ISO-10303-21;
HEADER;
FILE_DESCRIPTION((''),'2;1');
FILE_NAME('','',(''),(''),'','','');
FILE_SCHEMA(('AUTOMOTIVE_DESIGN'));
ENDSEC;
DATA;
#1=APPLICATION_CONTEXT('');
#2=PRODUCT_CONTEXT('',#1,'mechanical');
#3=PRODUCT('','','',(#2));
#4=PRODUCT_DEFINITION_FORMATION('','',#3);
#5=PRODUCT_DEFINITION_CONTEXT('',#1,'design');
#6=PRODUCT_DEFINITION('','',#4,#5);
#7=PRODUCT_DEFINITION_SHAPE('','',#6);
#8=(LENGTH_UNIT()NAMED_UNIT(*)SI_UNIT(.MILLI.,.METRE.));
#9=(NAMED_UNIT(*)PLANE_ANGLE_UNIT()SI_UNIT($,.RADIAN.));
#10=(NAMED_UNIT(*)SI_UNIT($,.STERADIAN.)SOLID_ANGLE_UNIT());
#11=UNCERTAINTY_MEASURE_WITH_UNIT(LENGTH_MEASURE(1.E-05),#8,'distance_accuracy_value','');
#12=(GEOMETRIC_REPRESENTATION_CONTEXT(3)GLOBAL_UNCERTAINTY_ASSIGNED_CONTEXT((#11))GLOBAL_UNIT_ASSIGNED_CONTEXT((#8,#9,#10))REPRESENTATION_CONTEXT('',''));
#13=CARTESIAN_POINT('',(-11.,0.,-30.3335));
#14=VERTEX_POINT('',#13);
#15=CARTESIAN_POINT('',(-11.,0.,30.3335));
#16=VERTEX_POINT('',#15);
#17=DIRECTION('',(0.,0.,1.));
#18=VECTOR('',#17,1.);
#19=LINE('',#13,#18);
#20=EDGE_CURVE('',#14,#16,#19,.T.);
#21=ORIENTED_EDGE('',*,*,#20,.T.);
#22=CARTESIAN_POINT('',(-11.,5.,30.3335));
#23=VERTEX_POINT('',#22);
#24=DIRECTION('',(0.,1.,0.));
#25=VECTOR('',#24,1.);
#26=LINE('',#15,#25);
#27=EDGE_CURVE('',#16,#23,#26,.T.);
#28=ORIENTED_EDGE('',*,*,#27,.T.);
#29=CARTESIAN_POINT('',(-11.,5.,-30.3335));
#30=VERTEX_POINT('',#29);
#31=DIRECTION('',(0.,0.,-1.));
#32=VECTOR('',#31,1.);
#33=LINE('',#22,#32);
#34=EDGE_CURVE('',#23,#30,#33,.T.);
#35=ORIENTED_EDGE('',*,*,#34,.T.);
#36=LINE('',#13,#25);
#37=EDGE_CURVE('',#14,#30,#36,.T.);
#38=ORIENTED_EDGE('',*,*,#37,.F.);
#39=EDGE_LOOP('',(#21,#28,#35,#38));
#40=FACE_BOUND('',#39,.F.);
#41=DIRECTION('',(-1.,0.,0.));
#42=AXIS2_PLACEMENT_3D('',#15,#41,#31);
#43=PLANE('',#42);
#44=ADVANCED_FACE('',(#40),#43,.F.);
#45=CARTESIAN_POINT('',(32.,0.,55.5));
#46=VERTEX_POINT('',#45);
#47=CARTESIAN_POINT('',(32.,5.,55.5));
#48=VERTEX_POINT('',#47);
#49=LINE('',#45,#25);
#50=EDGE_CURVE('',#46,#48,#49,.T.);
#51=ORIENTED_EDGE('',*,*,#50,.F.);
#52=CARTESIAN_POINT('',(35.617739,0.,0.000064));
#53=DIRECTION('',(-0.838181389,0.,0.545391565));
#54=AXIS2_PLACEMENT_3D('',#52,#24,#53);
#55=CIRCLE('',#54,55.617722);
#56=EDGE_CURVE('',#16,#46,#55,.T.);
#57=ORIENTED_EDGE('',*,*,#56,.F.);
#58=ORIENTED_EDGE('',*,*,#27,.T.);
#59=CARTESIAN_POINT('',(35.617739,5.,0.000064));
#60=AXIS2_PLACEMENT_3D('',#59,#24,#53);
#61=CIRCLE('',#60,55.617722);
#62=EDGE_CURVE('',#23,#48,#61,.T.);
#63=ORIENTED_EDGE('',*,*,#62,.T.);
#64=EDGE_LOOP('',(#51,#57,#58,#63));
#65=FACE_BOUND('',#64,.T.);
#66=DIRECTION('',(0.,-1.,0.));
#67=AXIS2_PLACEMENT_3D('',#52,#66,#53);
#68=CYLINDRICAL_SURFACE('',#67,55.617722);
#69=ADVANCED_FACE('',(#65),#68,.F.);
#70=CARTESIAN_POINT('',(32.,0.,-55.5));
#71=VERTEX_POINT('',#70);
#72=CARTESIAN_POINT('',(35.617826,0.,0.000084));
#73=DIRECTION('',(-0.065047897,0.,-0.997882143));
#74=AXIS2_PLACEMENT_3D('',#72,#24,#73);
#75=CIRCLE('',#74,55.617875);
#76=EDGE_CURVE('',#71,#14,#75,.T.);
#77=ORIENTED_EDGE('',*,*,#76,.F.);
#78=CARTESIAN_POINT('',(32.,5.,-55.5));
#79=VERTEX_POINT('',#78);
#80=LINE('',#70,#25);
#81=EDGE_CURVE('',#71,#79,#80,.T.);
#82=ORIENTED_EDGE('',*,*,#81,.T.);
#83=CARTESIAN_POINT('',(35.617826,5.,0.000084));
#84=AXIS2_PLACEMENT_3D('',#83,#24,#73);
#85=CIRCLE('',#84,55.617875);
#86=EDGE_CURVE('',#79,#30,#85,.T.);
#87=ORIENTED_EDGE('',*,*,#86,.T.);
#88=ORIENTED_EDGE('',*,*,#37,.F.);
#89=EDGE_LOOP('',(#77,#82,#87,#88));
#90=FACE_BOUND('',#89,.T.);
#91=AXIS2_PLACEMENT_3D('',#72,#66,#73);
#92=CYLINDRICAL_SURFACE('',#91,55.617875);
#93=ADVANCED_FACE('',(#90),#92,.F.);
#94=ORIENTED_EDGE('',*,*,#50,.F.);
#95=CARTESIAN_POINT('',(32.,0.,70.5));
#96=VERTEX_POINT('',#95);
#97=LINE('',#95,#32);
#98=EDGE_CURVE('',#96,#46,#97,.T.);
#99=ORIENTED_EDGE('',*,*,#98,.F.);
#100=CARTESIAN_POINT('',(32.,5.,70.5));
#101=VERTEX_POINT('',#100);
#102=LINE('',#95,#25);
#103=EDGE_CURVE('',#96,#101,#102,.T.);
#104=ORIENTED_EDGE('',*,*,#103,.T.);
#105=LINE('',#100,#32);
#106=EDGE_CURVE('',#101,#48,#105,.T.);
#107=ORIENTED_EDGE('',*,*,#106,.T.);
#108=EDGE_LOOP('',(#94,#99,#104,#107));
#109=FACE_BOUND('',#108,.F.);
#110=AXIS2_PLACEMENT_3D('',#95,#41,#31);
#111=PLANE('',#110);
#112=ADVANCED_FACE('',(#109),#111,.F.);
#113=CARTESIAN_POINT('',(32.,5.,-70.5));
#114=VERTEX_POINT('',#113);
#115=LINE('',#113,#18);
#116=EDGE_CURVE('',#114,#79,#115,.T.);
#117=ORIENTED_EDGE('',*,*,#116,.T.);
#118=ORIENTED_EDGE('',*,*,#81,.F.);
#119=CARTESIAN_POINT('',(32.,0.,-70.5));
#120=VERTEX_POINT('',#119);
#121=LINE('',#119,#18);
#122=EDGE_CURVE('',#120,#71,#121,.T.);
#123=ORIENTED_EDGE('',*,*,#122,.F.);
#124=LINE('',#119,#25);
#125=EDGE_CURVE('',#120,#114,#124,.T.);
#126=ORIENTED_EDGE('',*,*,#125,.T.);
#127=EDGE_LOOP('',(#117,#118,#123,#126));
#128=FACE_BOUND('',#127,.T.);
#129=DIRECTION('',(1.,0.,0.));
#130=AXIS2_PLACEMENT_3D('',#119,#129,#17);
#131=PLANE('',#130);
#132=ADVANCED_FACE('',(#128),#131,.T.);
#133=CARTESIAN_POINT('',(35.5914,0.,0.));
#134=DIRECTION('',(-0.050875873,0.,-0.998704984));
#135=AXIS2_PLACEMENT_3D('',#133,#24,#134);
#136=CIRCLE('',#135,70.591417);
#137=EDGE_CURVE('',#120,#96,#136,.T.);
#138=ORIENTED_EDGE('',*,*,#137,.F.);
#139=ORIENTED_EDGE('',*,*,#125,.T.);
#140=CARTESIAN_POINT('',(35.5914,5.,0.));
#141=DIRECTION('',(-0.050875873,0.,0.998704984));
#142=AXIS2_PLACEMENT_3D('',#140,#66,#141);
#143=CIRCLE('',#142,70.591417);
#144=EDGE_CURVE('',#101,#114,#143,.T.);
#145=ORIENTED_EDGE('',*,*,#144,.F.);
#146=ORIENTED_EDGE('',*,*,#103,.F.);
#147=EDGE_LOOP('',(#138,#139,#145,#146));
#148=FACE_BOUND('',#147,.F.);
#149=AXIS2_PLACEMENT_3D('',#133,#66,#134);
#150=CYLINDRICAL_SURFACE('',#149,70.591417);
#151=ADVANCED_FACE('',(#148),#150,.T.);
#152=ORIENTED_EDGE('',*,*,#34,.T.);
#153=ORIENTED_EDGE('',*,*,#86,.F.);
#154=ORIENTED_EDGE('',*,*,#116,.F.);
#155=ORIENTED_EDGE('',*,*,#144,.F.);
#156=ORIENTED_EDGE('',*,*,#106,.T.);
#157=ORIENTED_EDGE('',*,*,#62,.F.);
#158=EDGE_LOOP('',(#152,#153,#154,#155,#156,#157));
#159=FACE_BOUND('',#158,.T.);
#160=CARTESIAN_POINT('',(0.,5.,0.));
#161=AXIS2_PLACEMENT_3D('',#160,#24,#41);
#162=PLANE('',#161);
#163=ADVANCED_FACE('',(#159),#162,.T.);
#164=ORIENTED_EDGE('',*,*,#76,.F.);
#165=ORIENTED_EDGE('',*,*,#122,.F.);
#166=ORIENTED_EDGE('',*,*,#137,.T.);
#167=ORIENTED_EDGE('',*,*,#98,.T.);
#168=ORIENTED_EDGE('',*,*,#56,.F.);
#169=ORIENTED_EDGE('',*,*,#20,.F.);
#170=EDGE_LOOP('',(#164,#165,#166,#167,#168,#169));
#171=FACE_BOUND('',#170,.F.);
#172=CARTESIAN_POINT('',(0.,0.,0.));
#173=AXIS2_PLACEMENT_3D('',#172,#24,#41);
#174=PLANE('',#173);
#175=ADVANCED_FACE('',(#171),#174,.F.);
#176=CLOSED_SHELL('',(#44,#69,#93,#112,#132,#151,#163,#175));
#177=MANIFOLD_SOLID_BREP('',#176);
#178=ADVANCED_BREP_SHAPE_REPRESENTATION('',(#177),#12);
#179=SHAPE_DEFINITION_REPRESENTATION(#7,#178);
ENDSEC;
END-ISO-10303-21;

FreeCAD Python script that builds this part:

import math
import FreeCAD as App
import Part
import Sketcher

V = App.Vector
Q = App.Units.Quantity

doc = App.newDocument("Part")
params = doc.addObject("Spreadsheet::Sheet", "Params")
for row, (alias, value) in enumerate([
    ("sketch1_height", "15 mm"),
    ("pad1_length", "5 mm"),
], start=1):
    params.set(f"A{row}", alias)
    params.set(f"B{row}", "=" + value)
    params.setAlias(f"B{row}", alias)

body = doc.addObject("PartDesign::Body", "Body")

# Sketch on XZ plane
sketch1 = body.newObject("Sketcher::SketchObject", "Sketch")
sketch1.AttachmentSupport = (doc.getObject("XZ_Plane"), [""])
sketch1.MapMode = "FlatFace"
sketch1.addGeometry([
    Part.LineSegment(V(32, 70.5, 0), V(32, 55.5, 0)),  # 0
    Part.ArcOfCircle(Part.Circle(V(35.6178, 0, 0), V(0, 0, 1), 55.617789), math.radians(93.729582), math.radians(146.948553)),  # 1
    Part.LineSegment(V(-11, 30.3335, 0), V(-11, -30.3335, 0)),  # 2
    Part.ArcOfCircle(Part.Circle(V(35.6178, 0, 0), V(0, 0, 1), 55.617807), math.radians(-146.948553), math.radians(-93.729582)),  # 3
    Part.LineSegment(V(32, -55.5, 0), V(32, -70.5, 0)),  # 4
    Part.ArcOfCircle(Part.Circle(V(35.5914, 0, 0), V(0, 0, 1), 70.591417), math.radians(92.916232), math.radians(267.083768)),  # 5
], False)
sketch1.addConstraint([
    Sketcher.Constraint("Coincident", 0, 2, 1, 1),
    Sketcher.Constraint("Coincident", 1, 2, 2, 1),
    Sketcher.Constraint("Coincident", 2, 2, 3, 1),
    Sketcher.Constraint("Coincident", 3, 2, 4, 1),
    Sketcher.Constraint("Coincident", 4, 2, 5, 2),
    Sketcher.Constraint("Coincident", 5, 1, 0, 1),
    Sketcher.Constraint("Vertical", 0),
    Sketcher.Constraint("Vertical", 2),
    Sketcher.Constraint("Vertical", 4),
    Sketcher.Constraint("Coincident", 3, 3, 1, 3),
    Sketcher.Constraint("Equal", 1, 3),
    Sketcher.Constraint("Symmetric", 0, 2, 3, 2, -1),
    Sketcher.Constraint("PointOnObject", 5, 3, -1),
    Sketcher.Constraint("DistanceY", 0, 2, 0, 1, Q("15 mm")),
    Sketcher.Constraint("DistanceX", -1, 1, 0, 2, Q("32 mm")),
    Sketcher.Constraint("DistanceX", 1, 2, -1, 1, Q("11 mm")),
    Sketcher.Constraint("DistanceY", -1, 1, 0, 2, Q("55.5 mm")),
    Sketcher.Constraint("Radius", 1, Q("55.6178 mm")),
    Sketcher.Constraint("Radius", 5, Q("70.5914 mm")),
])
sketch1.setExpression("Constraints[13]", "Params.sketch1_height")
pad1 = body.newObject("PartDesign::Pad", "Pad")
pad1.Profile = sketch1
pad1.setExpression("Length", "Params.pad1_length")
pad1.Reversed = True

doc.recompute()
